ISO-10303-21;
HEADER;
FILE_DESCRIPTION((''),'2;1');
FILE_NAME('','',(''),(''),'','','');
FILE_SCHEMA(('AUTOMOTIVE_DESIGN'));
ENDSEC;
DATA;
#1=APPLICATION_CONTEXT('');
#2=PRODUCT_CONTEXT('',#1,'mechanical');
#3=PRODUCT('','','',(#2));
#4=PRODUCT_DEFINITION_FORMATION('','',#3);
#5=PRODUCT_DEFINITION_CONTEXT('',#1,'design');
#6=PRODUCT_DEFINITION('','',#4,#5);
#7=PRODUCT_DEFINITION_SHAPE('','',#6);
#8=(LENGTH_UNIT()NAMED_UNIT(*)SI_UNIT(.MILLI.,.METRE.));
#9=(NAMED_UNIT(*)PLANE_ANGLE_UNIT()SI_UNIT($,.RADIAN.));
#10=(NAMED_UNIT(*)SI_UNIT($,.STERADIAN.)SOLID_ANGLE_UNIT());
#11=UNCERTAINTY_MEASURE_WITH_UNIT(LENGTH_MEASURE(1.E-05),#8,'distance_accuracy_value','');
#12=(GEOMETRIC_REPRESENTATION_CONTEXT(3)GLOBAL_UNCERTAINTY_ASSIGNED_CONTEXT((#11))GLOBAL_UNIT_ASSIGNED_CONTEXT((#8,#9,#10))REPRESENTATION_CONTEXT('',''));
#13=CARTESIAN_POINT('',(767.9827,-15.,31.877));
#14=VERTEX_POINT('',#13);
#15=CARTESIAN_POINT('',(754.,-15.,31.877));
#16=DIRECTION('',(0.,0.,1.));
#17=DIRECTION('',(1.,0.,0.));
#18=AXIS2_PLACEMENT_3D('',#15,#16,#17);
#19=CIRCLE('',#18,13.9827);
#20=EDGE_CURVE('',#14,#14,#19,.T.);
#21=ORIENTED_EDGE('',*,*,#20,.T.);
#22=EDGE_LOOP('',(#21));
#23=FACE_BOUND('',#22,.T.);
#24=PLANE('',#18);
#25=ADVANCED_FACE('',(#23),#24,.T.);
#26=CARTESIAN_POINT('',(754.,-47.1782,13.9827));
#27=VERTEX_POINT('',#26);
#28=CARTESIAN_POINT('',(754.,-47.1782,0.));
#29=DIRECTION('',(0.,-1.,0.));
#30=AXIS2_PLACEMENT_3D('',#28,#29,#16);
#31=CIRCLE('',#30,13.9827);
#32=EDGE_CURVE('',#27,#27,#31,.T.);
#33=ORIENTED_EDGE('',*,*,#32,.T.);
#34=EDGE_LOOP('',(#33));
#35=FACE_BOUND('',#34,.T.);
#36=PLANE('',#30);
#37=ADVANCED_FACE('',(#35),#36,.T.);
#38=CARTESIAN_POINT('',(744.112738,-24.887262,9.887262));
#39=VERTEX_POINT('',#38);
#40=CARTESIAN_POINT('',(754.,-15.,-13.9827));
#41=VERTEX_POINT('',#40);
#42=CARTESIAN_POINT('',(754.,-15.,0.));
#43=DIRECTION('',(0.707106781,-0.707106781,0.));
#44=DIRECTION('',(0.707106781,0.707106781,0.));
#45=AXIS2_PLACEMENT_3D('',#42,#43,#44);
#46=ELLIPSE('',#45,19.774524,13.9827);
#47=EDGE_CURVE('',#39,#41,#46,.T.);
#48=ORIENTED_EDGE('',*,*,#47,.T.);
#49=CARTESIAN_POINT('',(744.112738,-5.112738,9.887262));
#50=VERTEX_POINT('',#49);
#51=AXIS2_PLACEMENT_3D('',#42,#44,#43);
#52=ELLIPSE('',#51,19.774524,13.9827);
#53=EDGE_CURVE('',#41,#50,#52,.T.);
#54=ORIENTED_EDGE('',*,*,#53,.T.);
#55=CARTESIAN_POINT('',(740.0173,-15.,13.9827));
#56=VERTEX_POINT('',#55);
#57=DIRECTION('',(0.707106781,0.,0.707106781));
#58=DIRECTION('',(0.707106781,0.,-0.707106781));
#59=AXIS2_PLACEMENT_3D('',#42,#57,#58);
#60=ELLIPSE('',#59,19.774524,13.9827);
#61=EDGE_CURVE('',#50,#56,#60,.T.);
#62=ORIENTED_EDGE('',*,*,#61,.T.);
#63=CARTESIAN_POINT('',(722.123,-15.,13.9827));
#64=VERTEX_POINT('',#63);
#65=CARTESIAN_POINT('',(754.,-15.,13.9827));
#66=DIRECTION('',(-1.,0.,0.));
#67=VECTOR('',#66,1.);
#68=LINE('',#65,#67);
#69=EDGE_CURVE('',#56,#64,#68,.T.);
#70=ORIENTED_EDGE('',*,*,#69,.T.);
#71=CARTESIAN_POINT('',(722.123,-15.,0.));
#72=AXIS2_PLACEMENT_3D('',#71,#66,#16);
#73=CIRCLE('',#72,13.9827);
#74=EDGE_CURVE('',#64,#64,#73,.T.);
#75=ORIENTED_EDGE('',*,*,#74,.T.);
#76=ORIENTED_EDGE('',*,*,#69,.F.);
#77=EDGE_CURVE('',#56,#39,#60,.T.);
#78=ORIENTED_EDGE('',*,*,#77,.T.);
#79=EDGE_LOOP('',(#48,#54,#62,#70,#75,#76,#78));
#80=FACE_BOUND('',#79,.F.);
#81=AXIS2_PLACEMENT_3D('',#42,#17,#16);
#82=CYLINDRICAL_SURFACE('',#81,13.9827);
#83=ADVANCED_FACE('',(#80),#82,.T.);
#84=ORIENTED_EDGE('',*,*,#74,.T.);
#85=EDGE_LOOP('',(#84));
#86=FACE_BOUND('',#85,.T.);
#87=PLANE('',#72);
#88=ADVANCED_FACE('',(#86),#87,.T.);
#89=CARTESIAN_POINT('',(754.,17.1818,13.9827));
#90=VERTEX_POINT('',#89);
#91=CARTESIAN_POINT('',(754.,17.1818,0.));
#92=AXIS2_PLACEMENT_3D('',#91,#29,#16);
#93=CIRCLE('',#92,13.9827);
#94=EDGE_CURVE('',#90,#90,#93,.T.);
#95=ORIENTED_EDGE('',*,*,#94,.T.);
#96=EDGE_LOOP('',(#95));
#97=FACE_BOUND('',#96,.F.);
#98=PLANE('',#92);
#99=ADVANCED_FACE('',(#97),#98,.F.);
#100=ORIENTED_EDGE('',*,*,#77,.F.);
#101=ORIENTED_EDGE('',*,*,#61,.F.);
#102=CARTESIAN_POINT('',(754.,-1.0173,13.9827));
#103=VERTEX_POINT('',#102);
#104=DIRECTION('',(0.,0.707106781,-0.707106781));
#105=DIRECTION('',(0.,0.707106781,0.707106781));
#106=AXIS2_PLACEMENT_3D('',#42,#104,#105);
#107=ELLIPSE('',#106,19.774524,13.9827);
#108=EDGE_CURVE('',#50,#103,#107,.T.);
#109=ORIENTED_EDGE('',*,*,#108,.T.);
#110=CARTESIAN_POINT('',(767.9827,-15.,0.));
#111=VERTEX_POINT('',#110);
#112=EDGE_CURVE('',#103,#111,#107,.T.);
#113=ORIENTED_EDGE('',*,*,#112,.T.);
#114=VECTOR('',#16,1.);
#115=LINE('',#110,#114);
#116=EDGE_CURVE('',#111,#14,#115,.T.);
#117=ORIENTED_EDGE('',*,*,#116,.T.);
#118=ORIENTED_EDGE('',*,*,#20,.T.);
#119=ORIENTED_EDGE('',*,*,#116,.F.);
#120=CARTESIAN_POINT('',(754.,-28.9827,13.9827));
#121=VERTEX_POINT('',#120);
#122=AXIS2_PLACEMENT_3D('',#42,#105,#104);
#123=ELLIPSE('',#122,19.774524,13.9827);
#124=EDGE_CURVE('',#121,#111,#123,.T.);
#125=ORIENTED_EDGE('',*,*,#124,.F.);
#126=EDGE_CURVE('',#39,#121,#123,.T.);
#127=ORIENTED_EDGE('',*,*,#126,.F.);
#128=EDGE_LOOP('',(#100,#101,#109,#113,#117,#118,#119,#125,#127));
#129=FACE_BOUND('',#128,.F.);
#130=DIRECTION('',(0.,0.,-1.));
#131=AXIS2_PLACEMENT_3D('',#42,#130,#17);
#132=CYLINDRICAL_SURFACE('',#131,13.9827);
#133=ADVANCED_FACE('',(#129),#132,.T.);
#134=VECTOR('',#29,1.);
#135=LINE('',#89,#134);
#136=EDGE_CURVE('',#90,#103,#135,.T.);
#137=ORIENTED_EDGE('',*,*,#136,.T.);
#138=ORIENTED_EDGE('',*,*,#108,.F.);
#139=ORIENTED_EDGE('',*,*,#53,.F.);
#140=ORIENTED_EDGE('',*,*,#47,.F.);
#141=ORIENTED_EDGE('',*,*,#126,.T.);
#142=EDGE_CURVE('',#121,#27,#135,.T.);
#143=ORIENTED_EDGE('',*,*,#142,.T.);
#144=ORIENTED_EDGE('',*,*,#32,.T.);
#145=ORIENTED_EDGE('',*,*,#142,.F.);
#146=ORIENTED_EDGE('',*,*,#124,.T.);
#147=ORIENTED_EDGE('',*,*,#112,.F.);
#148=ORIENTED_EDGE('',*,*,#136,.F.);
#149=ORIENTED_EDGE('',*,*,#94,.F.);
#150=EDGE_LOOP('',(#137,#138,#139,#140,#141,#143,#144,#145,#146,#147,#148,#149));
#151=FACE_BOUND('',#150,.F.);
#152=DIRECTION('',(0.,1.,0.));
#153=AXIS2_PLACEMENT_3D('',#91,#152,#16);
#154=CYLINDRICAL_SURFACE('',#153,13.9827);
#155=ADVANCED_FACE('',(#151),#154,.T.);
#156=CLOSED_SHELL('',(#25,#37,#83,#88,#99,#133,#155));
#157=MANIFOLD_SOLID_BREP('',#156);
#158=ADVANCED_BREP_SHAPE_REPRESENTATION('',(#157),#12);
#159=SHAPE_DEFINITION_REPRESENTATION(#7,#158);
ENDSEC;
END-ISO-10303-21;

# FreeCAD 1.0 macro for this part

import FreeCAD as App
import Part
import Sketcher
from FreeCAD import Vector
Q = App.Units.Quantity

doc = App.newDocument("Part")
body = doc.addObject("PartDesign::Body", "Body")

sketch1 = body.newObject("Sketcher::SketchObject", "Sketch")
sketch1.AttachmentSupport = (doc.getObject("YZ_Plane"), [""])
sketch1.MapMode = "FlatFace"
sketch1.addGeometry(Part.Circle(Vector(0, 0, 0), Vector(0, 0, 1), 14), False)
sketch1.addConstraint(Sketcher.Constraint("Coincident", 0, 3, -1, 1))
sketch1.addConstraint(Sketcher.Constraint("Diameter", 0, Q("1.101 in")))
pad1 = body.newObject("PartDesign::Pad", "Pad")
pad1.Profile = sketch1
pad1.Length = Q("1.255 in")
body2 = doc.addObject("PartDesign::Body", "Body001")

sketch2 = body2.newObject("Sketcher::SketchObject", "Sketch001")
sketch2.AttachmentSupport = (doc.getObject("XZ_Plane001"), [""])
sketch2.MapMode = "FlatFace"
sketch2.AttachmentOffset = App.Placement(Vector(0, 0, -1.267 * 25.4), App.Rotation())
sketch2.addGeometry(Part.Circle(Vector(0, 0, 0), Vector(0, 0, 1), 14), False)
sketch2.addConstraint(Sketcher.Constraint("Coincident", 0, 3, -1, 1))
sketch2.addConstraint(Sketcher.Constraint("Diameter", 0, Q("1.101 in")))
pad2 = body2.newObject("PartDesign::Pad", "Pad001")
pad2.Profile = sketch2
pad2.Length = 64.36
body3 = doc.addObject("PartDesign::Body", "Body002")

sketch3 = body3.newObject("Sketcher::SketchObject", "Sketch002")
sketch3.AttachmentSupport = (doc.getObject("XY_Plane002"), [""])
sketch3.MapMode = "FlatFace"
sketch3.addGeometry(Part.Circle(Vector(0, 0, 0), Vector(0, 0, 1), 14), False)
sketch3.addConstraint(Sketcher.Constraint("Coincident", 0, 3, -1, 1))
sketch3.addConstraint(Sketcher.Constraint("Diameter", 0, Q("1.101 in")))
pad3 = body3.newObject("PartDesign::Pad", "Pad002")
pad3.Profile = sketch3
pad3.Length = Q("1.255 in")
doc.recompute()

boolean = body3.newObject("PartDesign::Boolean", "Boolean")
boolean.Type = "Fuse"
boolean.addObjects([body2])
doc.recompute()

boolean2 = body3.newObject("PartDesign::Boolean", "Boolean001")
boolean2.Type = "Fuse"
boolean2.addObjects([body])
body4 = doc.addObject("PartDesign::Body", "Body003")
doc.recompute()

body3.Placement = App.Placement(Vector(754, -15, 0), App.Rotation(Vector(0, -1, 0), 90))
boolean3 = body4.newObject("PartDesign::Boolean", "Boolean002")
boolean3.Type = "Fuse"
boolean3.addObjects([body3])

doc.recompute()
